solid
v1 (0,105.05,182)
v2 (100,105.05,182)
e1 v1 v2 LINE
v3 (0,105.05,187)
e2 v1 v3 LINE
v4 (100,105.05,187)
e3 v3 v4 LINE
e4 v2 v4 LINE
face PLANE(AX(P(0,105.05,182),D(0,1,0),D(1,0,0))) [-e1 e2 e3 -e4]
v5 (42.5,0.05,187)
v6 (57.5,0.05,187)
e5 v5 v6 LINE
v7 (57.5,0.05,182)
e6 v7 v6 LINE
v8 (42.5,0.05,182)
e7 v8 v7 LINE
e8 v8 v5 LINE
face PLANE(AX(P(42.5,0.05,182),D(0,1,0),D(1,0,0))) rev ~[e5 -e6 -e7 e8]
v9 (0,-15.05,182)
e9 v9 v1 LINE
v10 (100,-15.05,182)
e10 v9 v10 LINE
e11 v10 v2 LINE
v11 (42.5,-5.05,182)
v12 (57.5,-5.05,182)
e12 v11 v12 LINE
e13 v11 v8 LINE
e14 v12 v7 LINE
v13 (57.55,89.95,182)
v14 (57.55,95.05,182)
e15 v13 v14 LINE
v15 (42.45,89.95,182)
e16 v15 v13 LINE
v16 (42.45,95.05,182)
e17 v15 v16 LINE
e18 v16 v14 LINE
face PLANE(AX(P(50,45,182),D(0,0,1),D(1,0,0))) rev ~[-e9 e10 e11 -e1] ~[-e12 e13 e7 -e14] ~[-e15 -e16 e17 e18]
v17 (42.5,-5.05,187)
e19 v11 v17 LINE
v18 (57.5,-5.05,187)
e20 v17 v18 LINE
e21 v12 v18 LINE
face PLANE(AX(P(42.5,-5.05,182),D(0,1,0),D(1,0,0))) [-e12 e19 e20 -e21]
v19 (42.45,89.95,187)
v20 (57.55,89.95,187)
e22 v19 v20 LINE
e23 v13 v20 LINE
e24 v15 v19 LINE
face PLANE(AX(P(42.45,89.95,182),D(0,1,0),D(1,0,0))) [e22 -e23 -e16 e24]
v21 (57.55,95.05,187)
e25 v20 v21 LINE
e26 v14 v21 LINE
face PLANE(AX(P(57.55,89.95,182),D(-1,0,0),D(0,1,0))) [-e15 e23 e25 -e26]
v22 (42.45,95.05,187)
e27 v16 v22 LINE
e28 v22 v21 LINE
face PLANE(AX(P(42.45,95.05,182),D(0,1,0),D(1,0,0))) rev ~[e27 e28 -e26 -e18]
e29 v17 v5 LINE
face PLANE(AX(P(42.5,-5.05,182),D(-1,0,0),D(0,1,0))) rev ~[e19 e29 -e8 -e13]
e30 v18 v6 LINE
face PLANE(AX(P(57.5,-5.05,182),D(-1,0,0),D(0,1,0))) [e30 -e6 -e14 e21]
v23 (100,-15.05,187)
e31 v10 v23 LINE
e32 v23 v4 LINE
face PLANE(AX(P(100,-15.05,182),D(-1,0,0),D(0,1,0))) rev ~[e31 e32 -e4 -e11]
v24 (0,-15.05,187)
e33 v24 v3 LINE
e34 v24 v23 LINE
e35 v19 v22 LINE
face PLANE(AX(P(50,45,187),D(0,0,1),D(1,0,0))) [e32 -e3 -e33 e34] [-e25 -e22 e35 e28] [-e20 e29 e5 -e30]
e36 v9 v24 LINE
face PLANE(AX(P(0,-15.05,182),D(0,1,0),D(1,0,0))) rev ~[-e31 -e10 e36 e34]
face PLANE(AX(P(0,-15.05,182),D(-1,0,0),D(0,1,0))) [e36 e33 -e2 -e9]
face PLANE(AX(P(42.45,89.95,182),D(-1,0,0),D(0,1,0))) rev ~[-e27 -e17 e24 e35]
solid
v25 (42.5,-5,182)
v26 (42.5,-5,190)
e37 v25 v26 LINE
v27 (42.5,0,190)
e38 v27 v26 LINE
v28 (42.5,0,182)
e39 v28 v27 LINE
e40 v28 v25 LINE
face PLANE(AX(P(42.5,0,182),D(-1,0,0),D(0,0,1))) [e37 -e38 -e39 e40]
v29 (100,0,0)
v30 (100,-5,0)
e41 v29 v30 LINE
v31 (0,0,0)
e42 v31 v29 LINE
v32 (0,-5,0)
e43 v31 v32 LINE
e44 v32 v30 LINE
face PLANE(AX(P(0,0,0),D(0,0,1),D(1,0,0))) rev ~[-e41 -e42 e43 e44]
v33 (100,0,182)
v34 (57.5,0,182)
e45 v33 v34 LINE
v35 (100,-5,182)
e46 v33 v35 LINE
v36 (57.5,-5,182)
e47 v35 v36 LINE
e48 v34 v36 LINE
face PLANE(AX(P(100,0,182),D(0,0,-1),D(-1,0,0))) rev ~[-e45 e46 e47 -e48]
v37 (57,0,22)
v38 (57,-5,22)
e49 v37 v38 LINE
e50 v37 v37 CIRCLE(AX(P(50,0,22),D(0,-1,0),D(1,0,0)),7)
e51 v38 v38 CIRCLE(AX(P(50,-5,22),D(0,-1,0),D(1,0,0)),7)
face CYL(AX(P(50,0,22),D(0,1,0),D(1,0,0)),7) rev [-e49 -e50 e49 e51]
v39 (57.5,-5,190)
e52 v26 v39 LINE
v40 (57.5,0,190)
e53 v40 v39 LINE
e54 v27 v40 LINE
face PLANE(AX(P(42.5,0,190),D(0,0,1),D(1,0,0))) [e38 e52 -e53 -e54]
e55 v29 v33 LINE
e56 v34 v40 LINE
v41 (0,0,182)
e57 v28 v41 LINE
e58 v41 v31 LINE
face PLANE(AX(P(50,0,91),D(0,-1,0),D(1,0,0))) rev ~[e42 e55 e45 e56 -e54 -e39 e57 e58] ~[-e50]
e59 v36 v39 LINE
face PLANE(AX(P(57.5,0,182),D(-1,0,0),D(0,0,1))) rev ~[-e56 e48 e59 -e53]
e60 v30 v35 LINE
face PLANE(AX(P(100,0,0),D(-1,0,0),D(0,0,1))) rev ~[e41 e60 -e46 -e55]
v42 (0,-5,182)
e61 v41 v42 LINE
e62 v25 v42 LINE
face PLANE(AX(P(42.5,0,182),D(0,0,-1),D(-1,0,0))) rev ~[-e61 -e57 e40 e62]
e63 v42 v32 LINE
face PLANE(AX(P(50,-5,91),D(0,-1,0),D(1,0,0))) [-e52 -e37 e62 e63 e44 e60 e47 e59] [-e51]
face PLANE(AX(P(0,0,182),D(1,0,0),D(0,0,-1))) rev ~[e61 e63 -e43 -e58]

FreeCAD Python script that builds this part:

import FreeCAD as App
import Part
import Sketcher
Q = App.Units.Quantity

doc = App.newDocument("Part")
params = doc.addObject("Spreadsheet::Sheet", "Params")
for row, (alias, value) in enumerate([
    ("sketch1_diameter", "14 mm"),
    ("sketch1_width", "100 mm"),
    ("sketch1_width2", "15 mm"),
    ("sketch1_height", "182 mm"),
    ("sketch1_height2", "8 mm"),
    ("pad1_length", "5 mm"),
    ("sketch2_width", "100 mm"),
    ("sketch2_width2", "15 mm"),
    ("sketch2_width3", "15.1 mm"),
    ("sketch2_height", "120.1 mm"),
    ("sketch2_height2", "5.1 mm"),
    ("pad2_length", "5 mm"),
], start=1):
    params.set(f"A{row}", alias)
    params.set(f"B{row}", "=" + value)
    params.setAlias(f"B{row}", alias)

body = doc.addObject("PartDesign::Body", "Body")

sketch1 = body.newObject("Sketcher::SketchObject", "Sketch")
sketch1.AttachmentSupport = (doc.getObject("XZ_Plane"), [""])
sketch1.MapMode = "FlatFace"
sketch1.addGeometry(Part.LineSegment(App.Vector(0, 182, 0), App.Vector(0, 0, 0)), False)
sketch1.addGeometry(Part.LineSegment(App.Vector(0, 0, 0), App.Vector(100, 0, 0)), False)
sketch1.addGeometry(Part.LineSegment(App.Vector(100, 0, 0), App.Vector(100, 182, 0)), False)
sketch1.addGeometry(Part.LineSegment(App.Vector(100, 182, 0), App.Vector(58, 182, 0)), False)
sketch1.addGeometry(Part.LineSegment(App.Vector(58, 182, 0), App.Vector(58, 190, 0)), False)
sketch1.addGeometry(Part.LineSegment(App.Vector(58, 190, 0), App.Vector(42, 190, 0)), False)
sketch1.addGeometry(Part.LineSegment(App.Vector(42, 190, 0), App.Vector(42, 182, 0)), False)
sketch1.addGeometry(Part.LineSegment(App.Vector(42, 182, 0), App.Vector(0, 182, 0)), False)
sketch1.addGeometry(Part.Circle(App.Vector(50, 22, 0), App.Vector(0, 0, 1), 7), False)
sketch1.addConstraint(Sketcher.Constraint("Coincident", 0, 2, 1, 1))
sketch1.addConstraint(Sketcher.Constraint("Coincident", 1, 2, 2, 1))
sketch1.addConstraint(Sketcher.Constraint("Coincident", 2, 2, 3, 1))
sketch1.addConstraint(Sketcher.Constraint("Coincident", 3, 2, 4, 1))
sketch1.addConstraint(Sketcher.Constraint("Coincident", 4, 2, 5, 1))
sketch1.addConstraint(Sketcher.Constraint("Coincident", 5, 2, 6, 1))
sketch1.addConstraint(Sketcher.Constraint("Coincident", 6, 2, 7, 1))
sketch1.addConstraint(Sketcher.Constraint("Coincident", 7, 2, 0, 1))
sketch1.addConstraint(Sketcher.Constraint("Vertical", 0))
sketch1.addConstraint(Sketcher.Constraint("Horizontal", 1))
sketch1.addConstraint(Sketcher.Constraint("Vertical", 2))
sketch1.addConstraint(Sketcher.Constraint("Horizontal", 3))
sketch1.addConstraint(Sketcher.Constraint("Vertical", 4))
sketch1.addConstraint(Sketcher.Constraint("Horizontal", 5))
sketch1.addConstraint(Sketcher.Constraint("Vertical", 6))
sketch1.addConstraint(Sketcher.Constraint("Horizontal", 7))
sketch1.addConstraint(Sketcher.Constraint("Coincident", 0, 2, -1, 1))
sketch1.addConstraint(Sketcher.Constraint("Horizontal", 3, 2, 6, 2))
sketch1.addConstraint(Sketcher.Constraint("Equal", 3, 7))
sketch1.addConstraint(Sketcher.Constraint("Diameter", 8, Q("14 mm")))
sketch1.addConstraint(Sketcher.Constraint("DistanceX", 1, 1, 1, 2, Q("100 mm")))
sketch1.addConstraint(Sketcher.Constraint("DistanceX", 5, 2, 5, 1, Q("15 mm")))
sketch1.addConstraint(Sketcher.Constraint("DistanceY", 0, 2, 0, 1, Q("182 mm")))
sketch1.addConstraint(Sketcher.Constraint("DistanceY", 4, 1, 4, 2, Q("8 mm")))
sketch1.addConstraint(Sketcher.Constraint("DistanceX", -1, 1, 8, 3, Q("50 mm")))
sketch1.addConstraint(Sketcher.Constraint("DistanceY", -1, 1, 8, 3, Q("22 mm")))
sketch1.setExpression("Constraints[19]", "Params.sketch1_diameter")
sketch1.setExpression("Constraints[20]", "Params.sketch1_width")
sketch1.setExpression("Constraints[21]", "Params.sketch1_width2")
sketch1.setExpression("Constraints[22]", "Params.sketch1_height")
sketch1.setExpression("Constraints[23]", "Params.sketch1_height2")
pad1 = body.newObject("PartDesign::Pad", "Pad")
pad1.Profile = sketch1
pad1.setExpression("Length", "Params.pad1_length")
body2 = doc.addObject("PartDesign::Body", "Body001")

sketch2 = body2.newObject("Sketcher::SketchObject", "Sketch001")
sketch2.AttachmentSupport = (doc.getObject("XY_Plane001"), [""])
sketch2.MapMode = "FlatFace"
sketch2.AttachmentOffset = App.Placement(App.Vector(0, 0, 182), App.Rotation())
sketch2.addGeometry(Part.LineSegment(App.Vector(0, 105, 0), App.Vector(0, -15, 0)), False)
sketch2.addGeometry(Part.LineSegment(App.Vector(0, -15, 0), App.Vector(100, -15, 0)), False)
sketch2.addGeometry(Part.LineSegment(App.Vector(100, -15, 0), App.Vector(100, 105, 0)), False)
sketch2.addGeometry(Part.LineSegment(App.Vector(100, 105, 0), App.Vector(0, 105, 0)), False)
sketch2.addGeometry(Part.LineSegment(App.Vector(58, -5, 0), App.Vector(42, -5, 0)), False)
sketch2.addGeometry(Part.LineSegment(App.Vector(42, -5, 0), App.Vector(42, 0, 0)), False)
sketch2.addGeometry(Part.LineSegment(App.Vector(42, 0, 0), App.Vector(58, 0, 0)), False)
sketch2.addGeometry(Part.LineSegment(App.Vector(58, 0, 0), App.Vector(58, -5, 0)), False)
sketch2.addGeometry(Part.LineSegment(App.Vector(58, 90, 0), App.Vector(42, 90, 0)), False)
sketch2.addGeometry(Part.LineSegment(App.Vector(42, 90, 0), App.Vector(42, 95, 0)), False)
sketch2.addGeometry(Part.LineSegment(App.Vector(42, 95, 0), App.Vector(58, 95, 0)), False)
sketch2.addGeometry(Part.LineSegment(App.Vector(58, 95, 0), App.Vector(58, 90, 0)), False)
sketch2.addConstraint(Sketcher.Constraint("Coincident", 0, 2, 1, 1))
sketch2.addConstraint(Sketcher.Constraint("Coincident", 1, 2, 2, 1))
sketch2.addConstraint(Sketcher.Constraint("Coincident", 2, 2, 3, 1))
sketch2.addConstraint(Sketcher.Constraint("Coincident", 3, 2, 0, 1))
sketch2.addConstraint(Sketcher.Constraint("Coincident", 4, 2, 5, 1))
sketch2.addConstraint(Sketcher.Constraint("Coincident", 5, 2, 6, 1))
sketch2.addConstraint(Sketcher.Constraint("Coincident", 6, 2, 7, 1))
sketch2.addConstraint(Sketcher.Constraint("Coincident", 7, 2, 4, 1))
sketch2.addConstraint(Sketcher.Constraint("Coincident", 8, 2, 9, 1))
sketch2.addConstraint(Sketcher.Constraint("Coincident", 9, 2, 10, 1))
sketch2.addConstraint(Sketcher.Constraint("Coincident", 10, 2, 11, 1))
sketch2.addConstraint(Sketcher.Constraint("Coincident", 11, 2, 8, 1))
sketch2.addConstraint(Sketcher.Constraint("Vertical", 0))
sketch2.addConstraint(Sketcher.Constraint("Horizontal", 1))
sketch2.addConstraint(Sketcher.Constraint("Vertical", 2))
sketch2.addConstraint(Sketcher.Constraint("Horizontal", 3))
sketch2.addConstraint(Sketcher.Constraint("Horizontal", 4))
sketch2.addConstraint(Sketcher.Constraint("Vertical", 5))
sketch2.addConstraint(Sketcher.Constraint("Horizontal", 6))
sketch2.addConstraint(Sketcher.Constraint("Vertical", 7))
sketch2.addConstraint(Sketcher.Constraint("Horizontal", 8))
sketch2.addConstraint(Sketcher.Constraint("Vertical", 9))
sketch2.addConstraint(Sketcher.Constraint("Horizontal", 10))
sketch2.addConstraint(Sketcher.Constraint("Vertical", 11))
sketch2.addConstraint(Sketcher.Constraint("PointOnObject", 0, 2, -2))
sketch2.addConstraint(Sketcher.Constraint("Equal", 7, 9))
sketch2.addConstraint(Sketcher.Constraint("DistanceX", 1, 1, 1, 2, Q("100 mm")))
sketch2.addConstraint(Sketcher.Constraint("DistanceX", 4, 2, 4, 1, Q("15 mm")))
sketch2.addConstraint(Sketcher.Constraint("DistanceX", 8, 2, 8, 1, Q("15.1 mm")))
sketch2.addConstraint(Sketcher.Constraint("DistanceY", 0, 2, 0, 1, Q("120.1 mm")))
sketch2.addConstraint(Sketcher.Constraint("DistanceY", 5, 1, 5, 2, Q("5.1 mm")))
sketch2.addConstraint(Sketcher.Constraint("DistanceY", 0, 2, 4, 2, Q("10 mm")))
sketch2.addConstraint(Sketcher.Constraint("DistanceY", 4, 2, 8, 2, Q("95 mm")))
sketch2.addConstraint(Sketcher.Constraint("DistanceX", -1, 1, 4, 2, Q("42.5 mm")))
sketch2.addConstraint(Sketcher.Constraint("DistanceY", 0, 2, -1, 1, Q("15.05 mm")))
sketch2.addConstraint(Sketcher.Constraint("DistanceX", -1, 1, 8, 2, Q("42.45 mm")))
sketch2.setExpression("Constraints[26]", "Params.sketch2_width")
sketch2.setExpression("Constraints[27]", "Params.sketch2_width2")
sketch2.setExpression("Constraints[28]", "Params.sketch2_width3")
sketch2.setExpression("Constraints[29]", "Params.sketch2_height")
sketch2.setExpression("Constraints[30]", "Params.sketch2_height2")
pad2 = body2.newObject("PartDesign::Pad", "Pad001")
pad2.Profile = sketch2
pad2.setExpression("Length", "Params.pad2_length")

doc.recompute()
